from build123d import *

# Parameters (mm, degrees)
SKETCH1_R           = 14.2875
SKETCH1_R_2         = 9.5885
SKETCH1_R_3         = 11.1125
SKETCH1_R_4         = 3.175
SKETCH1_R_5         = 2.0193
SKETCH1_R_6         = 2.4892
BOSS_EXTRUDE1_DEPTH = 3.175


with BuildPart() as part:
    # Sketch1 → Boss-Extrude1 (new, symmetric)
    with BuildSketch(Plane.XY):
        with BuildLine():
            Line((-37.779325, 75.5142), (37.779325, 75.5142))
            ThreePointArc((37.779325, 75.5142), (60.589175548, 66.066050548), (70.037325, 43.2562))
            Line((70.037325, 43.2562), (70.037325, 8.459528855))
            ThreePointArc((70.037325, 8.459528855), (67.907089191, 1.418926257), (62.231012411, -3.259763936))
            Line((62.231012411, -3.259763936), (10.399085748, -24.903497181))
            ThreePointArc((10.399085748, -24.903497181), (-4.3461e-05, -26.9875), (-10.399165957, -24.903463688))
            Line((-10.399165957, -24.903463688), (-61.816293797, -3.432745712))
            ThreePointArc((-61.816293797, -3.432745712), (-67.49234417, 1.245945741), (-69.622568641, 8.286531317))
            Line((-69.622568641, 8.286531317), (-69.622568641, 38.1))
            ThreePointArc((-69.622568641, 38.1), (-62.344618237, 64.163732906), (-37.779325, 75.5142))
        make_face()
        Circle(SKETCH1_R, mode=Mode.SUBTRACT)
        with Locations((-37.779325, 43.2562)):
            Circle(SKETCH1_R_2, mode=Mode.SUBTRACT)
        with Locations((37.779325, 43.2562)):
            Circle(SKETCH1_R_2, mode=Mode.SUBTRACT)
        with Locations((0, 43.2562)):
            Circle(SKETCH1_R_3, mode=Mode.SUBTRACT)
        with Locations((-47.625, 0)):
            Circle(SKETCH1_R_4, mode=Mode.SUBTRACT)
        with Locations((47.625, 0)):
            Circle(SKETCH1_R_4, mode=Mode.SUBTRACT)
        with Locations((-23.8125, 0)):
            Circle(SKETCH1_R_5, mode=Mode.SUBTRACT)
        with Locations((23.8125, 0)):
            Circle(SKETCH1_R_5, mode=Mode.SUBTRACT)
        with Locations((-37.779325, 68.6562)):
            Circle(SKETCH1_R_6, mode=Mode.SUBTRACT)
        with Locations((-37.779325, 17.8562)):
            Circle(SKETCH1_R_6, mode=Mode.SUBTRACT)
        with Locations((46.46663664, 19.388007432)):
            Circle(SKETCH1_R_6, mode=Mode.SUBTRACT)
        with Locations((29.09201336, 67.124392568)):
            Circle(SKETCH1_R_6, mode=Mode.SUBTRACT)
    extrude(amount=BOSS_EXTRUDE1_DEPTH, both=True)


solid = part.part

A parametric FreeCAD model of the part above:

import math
import FreeCAD as App
import Part
import Sketcher
from FreeCAD import Vector
Q = App.Units.Quantity

doc = App.newDocument("Part")
params = doc.addObject("Spreadsheet::Sheet", "Params")
for row, (alias, value) in enumerate([
    ("sketch1_radius", "0.5 in"),
    ("sketch1_diameter", "0.25 in"),
    ("sketch1_radius2", "1.27 in"),
    ("sketch1_diameter2", "0.159 in"),
    ("sketch1_diameter3", "1.125 in"),
    ("pad1_length", "0.25 in"),
], start=1):
    params.set(f"A{row}", alias)
    params.set(f"B{row}", "=" + value)
    params.setAlias(f"B{row}", alias)

body = doc.addObject("PartDesign::Body", "Body")

# Sketch on XY plane
sketch1 = doc.addObject("Sketcher::SketchObject", "Sketch")
body.addObject(sketch1)
sketch1.AttachmentSupport = (doc.XY_Plane, [""])
sketch1.MapMode = "FlatFace"
sketch1.addGeometry(Part.LineSegment(Vector(37.8, 75.5, 0), Vector(-37.8, 75.5, 0)), False)
sketch1.addGeometry(Part.ArcOfCircle(Part.Circle(Vector(-37.8, 43.3, 0), Vector(0, 0, 1), 32.3), math.radians(90), math.radians(189)), False)
sketch1.addGeometry(Part.LineSegment(Vector(-69.6, 38.1, 0), Vector(-69.6, 8.3, 0)), False)
sketch1.addGeometry(Part.ArcOfCircle(Part.Circle(Vector(-56.9, 8.3, 0), Vector(0, 0, 1), 12.7), math.radians(-180), math.radians(-113)), False)
sketch1.addGeometry(Part.LineSegment(Vector(-61.8, -3.4, 0), Vector(-10.4, -24.9, 0)), False)
sketch1.addGeometry(Part.ArcOfCircle(Part.Circle(Vector(0, 0, 0), Vector(0, 0, 1), 27), math.radians(-113), math.radians(-67)), False)
sketch1.addGeometry(Part.LineSegment(Vector(10.4, -24.9, 0), Vector(62.2, -3.3, 0)), False)
sketch1.addGeometry(Part.ArcOfCircle(Part.Circle(Vector(57.3, 8.5, 0), Vector(0, 0, 1), 12.7), math.radians(-67), math.radians(0)), False)
sketch1.addGeometry(Part.LineSegment(Vector(70, 8.5, 0), Vector(70, 43.3, 0)), False)
sketch1.addGeometry(Part.ArcOfCircle(Part.Circle(Vector(37.8, 43.3, 0), Vector(0, 0, 1), 32.3), math.radians(0), math.radians(90)), False)
sketch1.addGeometry(Part.Circle(Vector(47.6, 0, 0), Vector(0, 0, 1), 3.2), False)
sketch1.addGeometry(Part.Circle(Vector(23.8, 0, 0), Vector(0, 0, 1), 2), False)
sketch1.addGeometry(Part.Circle(Vector(0, 0, 0), Vector(0, 0, 1), 14.3), False)
sketch1.addGeometry(Part.Circle(Vector(46.5, 19.4, 0), Vector(0, 0, 1), 2.5), False)
sketch1.addGeometry(Part.Circle(Vector(-23.8, 0, 0), Vector(0, 0, 1), 2), False)
sketch1.addGeometry(Part.Circle(Vector(-47.6, 0, 0), Vector(0, 0, 1), 3.2), False)
sketch1.addGeometry(Part.Circle(Vector(-37.8, 17.9, 0), Vector(0, 0, 1), 2.5), False)
sketch1.addGeometry(Part.Circle(Vector(37.8, 43.3, 0), Vector(0, 0, 1), 9.6), False)
sketch1.addGeometry(Part.Circle(Vector(0, 43.3, 0), Vector(0, 0, 1), 11.1), False)
sketch1.addGeometry(Part.Circle(Vector(29.1, 67.1, 0), Vector(0, 0, 1), 2.5), False)
sketch1.addGeometry(Part.Circle(Vector(-37.8, 43.3, 0), Vector(0, 0, 1), 9.6), False)
sketch1.addGeometry(Part.Circle(Vector(-37.8, 68.7, 0), Vector(0, 0, 1), 2.5), False)
sketch1.addConstraint(Sketcher.Constraint("Tangent", 0, 2, 1, 1))
sketch1.addConstraint(Sketcher.Constraint("Coincident", 1, 2, 2, 1))
sketch1.addConstraint(Sketcher.Constraint("Tangent", 2, 2, 3, 1))
sketch1.addConstraint(Sketcher.Constraint("Tangent", 3, 2, 4, 1))
sketch1.addConstraint(Sketcher.Constraint("Tangent", 4, 2, 5, 1))
sketch1.addConstraint(Sketcher.Constraint("Tangent", 5, 2, 6, 1))
sketch1.addConstraint(Sketcher.Constraint("Tangent", 6, 2, 7, 1))
sketch1.addConstraint(Sketcher.Constraint("Tangent", 7, 2, 8, 1))
sketch1.addConstraint(Sketcher.Constraint("Tangent", 8, 2, 9, 1))
sketch1.addConstraint(Sketcher.Constraint("Tangent", 9, 2, 0, 1))
sketch1.addConstraint(Sketcher.Constraint("Horizontal", 0))
sketch1.addConstraint(Sketcher.Constraint("Vertical", 2))
sketch1.addConstraint(Sketcher.Constraint("Vertical", 8))
sketch1.addConstraint(Sketcher.Constraint("Coincident", 5, 3, -1, 1))
sketch1.addConstraint(Sketcher.Constraint("Coincident", 12, 3, -1, 1))
sketch1.addConstraint(Sketcher.Constraint("Coincident", 17, 3, 9, 3))
sketch1.addConstraint(Sketcher.Constraint("Coincident", 20, 3, 1, 3))
sketch1.addConstraint(Sketcher.Constraint("Equal", 3, 7))
sketch1.addConstraint(Sketcher.Constraint("Equal", 1, 9))
sketch1.addConstraint(Sketcher.Constraint("Equal", 11, 14))
sketch1.addConstraint(Sketcher.Constraint("Equal", 10, 15))
sketch1.addConstraint(Sketcher.Constraint("Equal", 13, 16))
sketch1.addConstraint(Sketcher.Constraint("Equal", 16, 19))
sketch1.addConstraint(Sketcher.Constraint("Equal", 17, 20))
sketch1.addConstraint(Sketcher.Constraint("Equal", 19, 21))
sketch1.addConstraint(Sketcher.Constraint("Symmetric", 11, 3, 14, 3, -1, 1))
sketch1.addConstraint(Sketcher.Constraint("Symmetric", 10, 3, 15, 3, -1, 1))
sketch1.addConstraint(Sketcher.Constraint("PointOnObject", 10, 3, -1))
sketch1.addConstraint(Sketcher.Constraint("PointOnObject", 11, 3, -1))
sketch1.addConstraint(Sketcher.Constraint("PointOnObject", 18, 3, -2))
sketch1.addConstraint(Sketcher.Constraint("Horizontal", 17, 3, 18, 3))
sketch1.addConstraint(Sketcher.Constraint("Vertical", 1, 3, 16, 3))
sketch1.addConstraint(Sketcher.Constraint("Vertical", 20, 3, 21, 3))
sketch1.addConstraint(Sketcher.Constraint("Radius", 3, Q("0.5 in")))
sketch1.addConstraint(Sketcher.Constraint("Diameter", 10, Q("0.25 in")))
sketch1.addConstraint(Sketcher.Constraint("Radius", 1, Q("1.27 in")))
sketch1.addConstraint(Sketcher.Constraint("Diameter", 11, Q("0.159 in")))
sketch1.addConstraint(Sketcher.Constraint("Diameter", 12, Q("1.125 in")))
sketch1.addConstraint(Sketcher.Constraint("Diameter", 13, Q("0.196 in")))
sketch1.addConstraint(Sketcher.Constraint("Diameter", 17, Q("0.755 in")))
sketch1.addConstraint(Sketcher.Constraint("Diameter", 18, Q("0.875 in")))
sketch1.addConstraint(Sketcher.Constraint("Radius", 5, Q("1.0625 in")))
sketch1.addConstraint(Sketcher.Constraint("DistanceY", 16, 3, 1, 3, Q("1 in")))
sketch1.addConstraint(Sketcher.Constraint("DistanceY", 1, 3, 21, 3, Q("1 in")))
sketch1.addConstraint(Sketcher.Constraint("DistanceY", -1, 1, 1, 2, Q("1.5 in")))
sketch1.addConstraint(Sketcher.Constraint("DistanceY", -1, 1, 1, 3, Q("1.703 in")))
sketch1.addConstraint(Sketcher.Constraint("DistanceX", -1, 1, 10, 3, Q("1.875 in")))
sketch1.addConstraint(Sketcher.Constraint("DistanceX", -1, 1, 11, 3, Q("0.9375 in")))
sketch1.addConstraint(Sketcher.Constraint("DistanceX", 0, 2, 0, 1, 75.55865))
sketch1.addConstraint(Sketcher.Constraint("DistanceY", 2, 2, 2, 1, 29.813469))
sketch1.addConstraint(Sketcher.Constraint("DistanceY", 8, 1, 8, 2, 34.796671))
sketch1.addConstraint(Sketcher.Constraint("Distance", 4, 55.719949))
sketch1.addConstraint(Sketcher.Constraint("DistanceX", 13, 3, 7, 3, 10.870688))
sketch1.addConstraint(Sketcher.Constraint("DistanceY", 7, 3, 13, 3, 10.928479))
sketch1.addConstraint(Sketcher.Constraint("DistanceX", 19, 3, 9, 3, 8.687312))
sketch1.addConstraint(Sketcher.Constraint("DistanceY", -1, 1, 19, 3, 67.124393))
sketch1.setExpression("Constraints[33]", "Params.sketch1_radius")
sketch1.setExpression("Constraints[34]", "Params.sketch1_diameter")
sketch1.setExpression("Constraints[35]", "Params.sketch1_radius2")
sketch1.setExpression("Constraints[36]", "Params.sketch1_diameter2")
sketch1.setExpression("Constraints[37]", "Params.sketch1_diameter3")
pad1 = doc.addObject("PartDesign::Pad", "Pad")
body.addObject(pad1)
pad1.Profile = sketch1
pad1.setExpression("Length", "Params.pad1_length")
pad1.Midplane = True

doc.recompute()
